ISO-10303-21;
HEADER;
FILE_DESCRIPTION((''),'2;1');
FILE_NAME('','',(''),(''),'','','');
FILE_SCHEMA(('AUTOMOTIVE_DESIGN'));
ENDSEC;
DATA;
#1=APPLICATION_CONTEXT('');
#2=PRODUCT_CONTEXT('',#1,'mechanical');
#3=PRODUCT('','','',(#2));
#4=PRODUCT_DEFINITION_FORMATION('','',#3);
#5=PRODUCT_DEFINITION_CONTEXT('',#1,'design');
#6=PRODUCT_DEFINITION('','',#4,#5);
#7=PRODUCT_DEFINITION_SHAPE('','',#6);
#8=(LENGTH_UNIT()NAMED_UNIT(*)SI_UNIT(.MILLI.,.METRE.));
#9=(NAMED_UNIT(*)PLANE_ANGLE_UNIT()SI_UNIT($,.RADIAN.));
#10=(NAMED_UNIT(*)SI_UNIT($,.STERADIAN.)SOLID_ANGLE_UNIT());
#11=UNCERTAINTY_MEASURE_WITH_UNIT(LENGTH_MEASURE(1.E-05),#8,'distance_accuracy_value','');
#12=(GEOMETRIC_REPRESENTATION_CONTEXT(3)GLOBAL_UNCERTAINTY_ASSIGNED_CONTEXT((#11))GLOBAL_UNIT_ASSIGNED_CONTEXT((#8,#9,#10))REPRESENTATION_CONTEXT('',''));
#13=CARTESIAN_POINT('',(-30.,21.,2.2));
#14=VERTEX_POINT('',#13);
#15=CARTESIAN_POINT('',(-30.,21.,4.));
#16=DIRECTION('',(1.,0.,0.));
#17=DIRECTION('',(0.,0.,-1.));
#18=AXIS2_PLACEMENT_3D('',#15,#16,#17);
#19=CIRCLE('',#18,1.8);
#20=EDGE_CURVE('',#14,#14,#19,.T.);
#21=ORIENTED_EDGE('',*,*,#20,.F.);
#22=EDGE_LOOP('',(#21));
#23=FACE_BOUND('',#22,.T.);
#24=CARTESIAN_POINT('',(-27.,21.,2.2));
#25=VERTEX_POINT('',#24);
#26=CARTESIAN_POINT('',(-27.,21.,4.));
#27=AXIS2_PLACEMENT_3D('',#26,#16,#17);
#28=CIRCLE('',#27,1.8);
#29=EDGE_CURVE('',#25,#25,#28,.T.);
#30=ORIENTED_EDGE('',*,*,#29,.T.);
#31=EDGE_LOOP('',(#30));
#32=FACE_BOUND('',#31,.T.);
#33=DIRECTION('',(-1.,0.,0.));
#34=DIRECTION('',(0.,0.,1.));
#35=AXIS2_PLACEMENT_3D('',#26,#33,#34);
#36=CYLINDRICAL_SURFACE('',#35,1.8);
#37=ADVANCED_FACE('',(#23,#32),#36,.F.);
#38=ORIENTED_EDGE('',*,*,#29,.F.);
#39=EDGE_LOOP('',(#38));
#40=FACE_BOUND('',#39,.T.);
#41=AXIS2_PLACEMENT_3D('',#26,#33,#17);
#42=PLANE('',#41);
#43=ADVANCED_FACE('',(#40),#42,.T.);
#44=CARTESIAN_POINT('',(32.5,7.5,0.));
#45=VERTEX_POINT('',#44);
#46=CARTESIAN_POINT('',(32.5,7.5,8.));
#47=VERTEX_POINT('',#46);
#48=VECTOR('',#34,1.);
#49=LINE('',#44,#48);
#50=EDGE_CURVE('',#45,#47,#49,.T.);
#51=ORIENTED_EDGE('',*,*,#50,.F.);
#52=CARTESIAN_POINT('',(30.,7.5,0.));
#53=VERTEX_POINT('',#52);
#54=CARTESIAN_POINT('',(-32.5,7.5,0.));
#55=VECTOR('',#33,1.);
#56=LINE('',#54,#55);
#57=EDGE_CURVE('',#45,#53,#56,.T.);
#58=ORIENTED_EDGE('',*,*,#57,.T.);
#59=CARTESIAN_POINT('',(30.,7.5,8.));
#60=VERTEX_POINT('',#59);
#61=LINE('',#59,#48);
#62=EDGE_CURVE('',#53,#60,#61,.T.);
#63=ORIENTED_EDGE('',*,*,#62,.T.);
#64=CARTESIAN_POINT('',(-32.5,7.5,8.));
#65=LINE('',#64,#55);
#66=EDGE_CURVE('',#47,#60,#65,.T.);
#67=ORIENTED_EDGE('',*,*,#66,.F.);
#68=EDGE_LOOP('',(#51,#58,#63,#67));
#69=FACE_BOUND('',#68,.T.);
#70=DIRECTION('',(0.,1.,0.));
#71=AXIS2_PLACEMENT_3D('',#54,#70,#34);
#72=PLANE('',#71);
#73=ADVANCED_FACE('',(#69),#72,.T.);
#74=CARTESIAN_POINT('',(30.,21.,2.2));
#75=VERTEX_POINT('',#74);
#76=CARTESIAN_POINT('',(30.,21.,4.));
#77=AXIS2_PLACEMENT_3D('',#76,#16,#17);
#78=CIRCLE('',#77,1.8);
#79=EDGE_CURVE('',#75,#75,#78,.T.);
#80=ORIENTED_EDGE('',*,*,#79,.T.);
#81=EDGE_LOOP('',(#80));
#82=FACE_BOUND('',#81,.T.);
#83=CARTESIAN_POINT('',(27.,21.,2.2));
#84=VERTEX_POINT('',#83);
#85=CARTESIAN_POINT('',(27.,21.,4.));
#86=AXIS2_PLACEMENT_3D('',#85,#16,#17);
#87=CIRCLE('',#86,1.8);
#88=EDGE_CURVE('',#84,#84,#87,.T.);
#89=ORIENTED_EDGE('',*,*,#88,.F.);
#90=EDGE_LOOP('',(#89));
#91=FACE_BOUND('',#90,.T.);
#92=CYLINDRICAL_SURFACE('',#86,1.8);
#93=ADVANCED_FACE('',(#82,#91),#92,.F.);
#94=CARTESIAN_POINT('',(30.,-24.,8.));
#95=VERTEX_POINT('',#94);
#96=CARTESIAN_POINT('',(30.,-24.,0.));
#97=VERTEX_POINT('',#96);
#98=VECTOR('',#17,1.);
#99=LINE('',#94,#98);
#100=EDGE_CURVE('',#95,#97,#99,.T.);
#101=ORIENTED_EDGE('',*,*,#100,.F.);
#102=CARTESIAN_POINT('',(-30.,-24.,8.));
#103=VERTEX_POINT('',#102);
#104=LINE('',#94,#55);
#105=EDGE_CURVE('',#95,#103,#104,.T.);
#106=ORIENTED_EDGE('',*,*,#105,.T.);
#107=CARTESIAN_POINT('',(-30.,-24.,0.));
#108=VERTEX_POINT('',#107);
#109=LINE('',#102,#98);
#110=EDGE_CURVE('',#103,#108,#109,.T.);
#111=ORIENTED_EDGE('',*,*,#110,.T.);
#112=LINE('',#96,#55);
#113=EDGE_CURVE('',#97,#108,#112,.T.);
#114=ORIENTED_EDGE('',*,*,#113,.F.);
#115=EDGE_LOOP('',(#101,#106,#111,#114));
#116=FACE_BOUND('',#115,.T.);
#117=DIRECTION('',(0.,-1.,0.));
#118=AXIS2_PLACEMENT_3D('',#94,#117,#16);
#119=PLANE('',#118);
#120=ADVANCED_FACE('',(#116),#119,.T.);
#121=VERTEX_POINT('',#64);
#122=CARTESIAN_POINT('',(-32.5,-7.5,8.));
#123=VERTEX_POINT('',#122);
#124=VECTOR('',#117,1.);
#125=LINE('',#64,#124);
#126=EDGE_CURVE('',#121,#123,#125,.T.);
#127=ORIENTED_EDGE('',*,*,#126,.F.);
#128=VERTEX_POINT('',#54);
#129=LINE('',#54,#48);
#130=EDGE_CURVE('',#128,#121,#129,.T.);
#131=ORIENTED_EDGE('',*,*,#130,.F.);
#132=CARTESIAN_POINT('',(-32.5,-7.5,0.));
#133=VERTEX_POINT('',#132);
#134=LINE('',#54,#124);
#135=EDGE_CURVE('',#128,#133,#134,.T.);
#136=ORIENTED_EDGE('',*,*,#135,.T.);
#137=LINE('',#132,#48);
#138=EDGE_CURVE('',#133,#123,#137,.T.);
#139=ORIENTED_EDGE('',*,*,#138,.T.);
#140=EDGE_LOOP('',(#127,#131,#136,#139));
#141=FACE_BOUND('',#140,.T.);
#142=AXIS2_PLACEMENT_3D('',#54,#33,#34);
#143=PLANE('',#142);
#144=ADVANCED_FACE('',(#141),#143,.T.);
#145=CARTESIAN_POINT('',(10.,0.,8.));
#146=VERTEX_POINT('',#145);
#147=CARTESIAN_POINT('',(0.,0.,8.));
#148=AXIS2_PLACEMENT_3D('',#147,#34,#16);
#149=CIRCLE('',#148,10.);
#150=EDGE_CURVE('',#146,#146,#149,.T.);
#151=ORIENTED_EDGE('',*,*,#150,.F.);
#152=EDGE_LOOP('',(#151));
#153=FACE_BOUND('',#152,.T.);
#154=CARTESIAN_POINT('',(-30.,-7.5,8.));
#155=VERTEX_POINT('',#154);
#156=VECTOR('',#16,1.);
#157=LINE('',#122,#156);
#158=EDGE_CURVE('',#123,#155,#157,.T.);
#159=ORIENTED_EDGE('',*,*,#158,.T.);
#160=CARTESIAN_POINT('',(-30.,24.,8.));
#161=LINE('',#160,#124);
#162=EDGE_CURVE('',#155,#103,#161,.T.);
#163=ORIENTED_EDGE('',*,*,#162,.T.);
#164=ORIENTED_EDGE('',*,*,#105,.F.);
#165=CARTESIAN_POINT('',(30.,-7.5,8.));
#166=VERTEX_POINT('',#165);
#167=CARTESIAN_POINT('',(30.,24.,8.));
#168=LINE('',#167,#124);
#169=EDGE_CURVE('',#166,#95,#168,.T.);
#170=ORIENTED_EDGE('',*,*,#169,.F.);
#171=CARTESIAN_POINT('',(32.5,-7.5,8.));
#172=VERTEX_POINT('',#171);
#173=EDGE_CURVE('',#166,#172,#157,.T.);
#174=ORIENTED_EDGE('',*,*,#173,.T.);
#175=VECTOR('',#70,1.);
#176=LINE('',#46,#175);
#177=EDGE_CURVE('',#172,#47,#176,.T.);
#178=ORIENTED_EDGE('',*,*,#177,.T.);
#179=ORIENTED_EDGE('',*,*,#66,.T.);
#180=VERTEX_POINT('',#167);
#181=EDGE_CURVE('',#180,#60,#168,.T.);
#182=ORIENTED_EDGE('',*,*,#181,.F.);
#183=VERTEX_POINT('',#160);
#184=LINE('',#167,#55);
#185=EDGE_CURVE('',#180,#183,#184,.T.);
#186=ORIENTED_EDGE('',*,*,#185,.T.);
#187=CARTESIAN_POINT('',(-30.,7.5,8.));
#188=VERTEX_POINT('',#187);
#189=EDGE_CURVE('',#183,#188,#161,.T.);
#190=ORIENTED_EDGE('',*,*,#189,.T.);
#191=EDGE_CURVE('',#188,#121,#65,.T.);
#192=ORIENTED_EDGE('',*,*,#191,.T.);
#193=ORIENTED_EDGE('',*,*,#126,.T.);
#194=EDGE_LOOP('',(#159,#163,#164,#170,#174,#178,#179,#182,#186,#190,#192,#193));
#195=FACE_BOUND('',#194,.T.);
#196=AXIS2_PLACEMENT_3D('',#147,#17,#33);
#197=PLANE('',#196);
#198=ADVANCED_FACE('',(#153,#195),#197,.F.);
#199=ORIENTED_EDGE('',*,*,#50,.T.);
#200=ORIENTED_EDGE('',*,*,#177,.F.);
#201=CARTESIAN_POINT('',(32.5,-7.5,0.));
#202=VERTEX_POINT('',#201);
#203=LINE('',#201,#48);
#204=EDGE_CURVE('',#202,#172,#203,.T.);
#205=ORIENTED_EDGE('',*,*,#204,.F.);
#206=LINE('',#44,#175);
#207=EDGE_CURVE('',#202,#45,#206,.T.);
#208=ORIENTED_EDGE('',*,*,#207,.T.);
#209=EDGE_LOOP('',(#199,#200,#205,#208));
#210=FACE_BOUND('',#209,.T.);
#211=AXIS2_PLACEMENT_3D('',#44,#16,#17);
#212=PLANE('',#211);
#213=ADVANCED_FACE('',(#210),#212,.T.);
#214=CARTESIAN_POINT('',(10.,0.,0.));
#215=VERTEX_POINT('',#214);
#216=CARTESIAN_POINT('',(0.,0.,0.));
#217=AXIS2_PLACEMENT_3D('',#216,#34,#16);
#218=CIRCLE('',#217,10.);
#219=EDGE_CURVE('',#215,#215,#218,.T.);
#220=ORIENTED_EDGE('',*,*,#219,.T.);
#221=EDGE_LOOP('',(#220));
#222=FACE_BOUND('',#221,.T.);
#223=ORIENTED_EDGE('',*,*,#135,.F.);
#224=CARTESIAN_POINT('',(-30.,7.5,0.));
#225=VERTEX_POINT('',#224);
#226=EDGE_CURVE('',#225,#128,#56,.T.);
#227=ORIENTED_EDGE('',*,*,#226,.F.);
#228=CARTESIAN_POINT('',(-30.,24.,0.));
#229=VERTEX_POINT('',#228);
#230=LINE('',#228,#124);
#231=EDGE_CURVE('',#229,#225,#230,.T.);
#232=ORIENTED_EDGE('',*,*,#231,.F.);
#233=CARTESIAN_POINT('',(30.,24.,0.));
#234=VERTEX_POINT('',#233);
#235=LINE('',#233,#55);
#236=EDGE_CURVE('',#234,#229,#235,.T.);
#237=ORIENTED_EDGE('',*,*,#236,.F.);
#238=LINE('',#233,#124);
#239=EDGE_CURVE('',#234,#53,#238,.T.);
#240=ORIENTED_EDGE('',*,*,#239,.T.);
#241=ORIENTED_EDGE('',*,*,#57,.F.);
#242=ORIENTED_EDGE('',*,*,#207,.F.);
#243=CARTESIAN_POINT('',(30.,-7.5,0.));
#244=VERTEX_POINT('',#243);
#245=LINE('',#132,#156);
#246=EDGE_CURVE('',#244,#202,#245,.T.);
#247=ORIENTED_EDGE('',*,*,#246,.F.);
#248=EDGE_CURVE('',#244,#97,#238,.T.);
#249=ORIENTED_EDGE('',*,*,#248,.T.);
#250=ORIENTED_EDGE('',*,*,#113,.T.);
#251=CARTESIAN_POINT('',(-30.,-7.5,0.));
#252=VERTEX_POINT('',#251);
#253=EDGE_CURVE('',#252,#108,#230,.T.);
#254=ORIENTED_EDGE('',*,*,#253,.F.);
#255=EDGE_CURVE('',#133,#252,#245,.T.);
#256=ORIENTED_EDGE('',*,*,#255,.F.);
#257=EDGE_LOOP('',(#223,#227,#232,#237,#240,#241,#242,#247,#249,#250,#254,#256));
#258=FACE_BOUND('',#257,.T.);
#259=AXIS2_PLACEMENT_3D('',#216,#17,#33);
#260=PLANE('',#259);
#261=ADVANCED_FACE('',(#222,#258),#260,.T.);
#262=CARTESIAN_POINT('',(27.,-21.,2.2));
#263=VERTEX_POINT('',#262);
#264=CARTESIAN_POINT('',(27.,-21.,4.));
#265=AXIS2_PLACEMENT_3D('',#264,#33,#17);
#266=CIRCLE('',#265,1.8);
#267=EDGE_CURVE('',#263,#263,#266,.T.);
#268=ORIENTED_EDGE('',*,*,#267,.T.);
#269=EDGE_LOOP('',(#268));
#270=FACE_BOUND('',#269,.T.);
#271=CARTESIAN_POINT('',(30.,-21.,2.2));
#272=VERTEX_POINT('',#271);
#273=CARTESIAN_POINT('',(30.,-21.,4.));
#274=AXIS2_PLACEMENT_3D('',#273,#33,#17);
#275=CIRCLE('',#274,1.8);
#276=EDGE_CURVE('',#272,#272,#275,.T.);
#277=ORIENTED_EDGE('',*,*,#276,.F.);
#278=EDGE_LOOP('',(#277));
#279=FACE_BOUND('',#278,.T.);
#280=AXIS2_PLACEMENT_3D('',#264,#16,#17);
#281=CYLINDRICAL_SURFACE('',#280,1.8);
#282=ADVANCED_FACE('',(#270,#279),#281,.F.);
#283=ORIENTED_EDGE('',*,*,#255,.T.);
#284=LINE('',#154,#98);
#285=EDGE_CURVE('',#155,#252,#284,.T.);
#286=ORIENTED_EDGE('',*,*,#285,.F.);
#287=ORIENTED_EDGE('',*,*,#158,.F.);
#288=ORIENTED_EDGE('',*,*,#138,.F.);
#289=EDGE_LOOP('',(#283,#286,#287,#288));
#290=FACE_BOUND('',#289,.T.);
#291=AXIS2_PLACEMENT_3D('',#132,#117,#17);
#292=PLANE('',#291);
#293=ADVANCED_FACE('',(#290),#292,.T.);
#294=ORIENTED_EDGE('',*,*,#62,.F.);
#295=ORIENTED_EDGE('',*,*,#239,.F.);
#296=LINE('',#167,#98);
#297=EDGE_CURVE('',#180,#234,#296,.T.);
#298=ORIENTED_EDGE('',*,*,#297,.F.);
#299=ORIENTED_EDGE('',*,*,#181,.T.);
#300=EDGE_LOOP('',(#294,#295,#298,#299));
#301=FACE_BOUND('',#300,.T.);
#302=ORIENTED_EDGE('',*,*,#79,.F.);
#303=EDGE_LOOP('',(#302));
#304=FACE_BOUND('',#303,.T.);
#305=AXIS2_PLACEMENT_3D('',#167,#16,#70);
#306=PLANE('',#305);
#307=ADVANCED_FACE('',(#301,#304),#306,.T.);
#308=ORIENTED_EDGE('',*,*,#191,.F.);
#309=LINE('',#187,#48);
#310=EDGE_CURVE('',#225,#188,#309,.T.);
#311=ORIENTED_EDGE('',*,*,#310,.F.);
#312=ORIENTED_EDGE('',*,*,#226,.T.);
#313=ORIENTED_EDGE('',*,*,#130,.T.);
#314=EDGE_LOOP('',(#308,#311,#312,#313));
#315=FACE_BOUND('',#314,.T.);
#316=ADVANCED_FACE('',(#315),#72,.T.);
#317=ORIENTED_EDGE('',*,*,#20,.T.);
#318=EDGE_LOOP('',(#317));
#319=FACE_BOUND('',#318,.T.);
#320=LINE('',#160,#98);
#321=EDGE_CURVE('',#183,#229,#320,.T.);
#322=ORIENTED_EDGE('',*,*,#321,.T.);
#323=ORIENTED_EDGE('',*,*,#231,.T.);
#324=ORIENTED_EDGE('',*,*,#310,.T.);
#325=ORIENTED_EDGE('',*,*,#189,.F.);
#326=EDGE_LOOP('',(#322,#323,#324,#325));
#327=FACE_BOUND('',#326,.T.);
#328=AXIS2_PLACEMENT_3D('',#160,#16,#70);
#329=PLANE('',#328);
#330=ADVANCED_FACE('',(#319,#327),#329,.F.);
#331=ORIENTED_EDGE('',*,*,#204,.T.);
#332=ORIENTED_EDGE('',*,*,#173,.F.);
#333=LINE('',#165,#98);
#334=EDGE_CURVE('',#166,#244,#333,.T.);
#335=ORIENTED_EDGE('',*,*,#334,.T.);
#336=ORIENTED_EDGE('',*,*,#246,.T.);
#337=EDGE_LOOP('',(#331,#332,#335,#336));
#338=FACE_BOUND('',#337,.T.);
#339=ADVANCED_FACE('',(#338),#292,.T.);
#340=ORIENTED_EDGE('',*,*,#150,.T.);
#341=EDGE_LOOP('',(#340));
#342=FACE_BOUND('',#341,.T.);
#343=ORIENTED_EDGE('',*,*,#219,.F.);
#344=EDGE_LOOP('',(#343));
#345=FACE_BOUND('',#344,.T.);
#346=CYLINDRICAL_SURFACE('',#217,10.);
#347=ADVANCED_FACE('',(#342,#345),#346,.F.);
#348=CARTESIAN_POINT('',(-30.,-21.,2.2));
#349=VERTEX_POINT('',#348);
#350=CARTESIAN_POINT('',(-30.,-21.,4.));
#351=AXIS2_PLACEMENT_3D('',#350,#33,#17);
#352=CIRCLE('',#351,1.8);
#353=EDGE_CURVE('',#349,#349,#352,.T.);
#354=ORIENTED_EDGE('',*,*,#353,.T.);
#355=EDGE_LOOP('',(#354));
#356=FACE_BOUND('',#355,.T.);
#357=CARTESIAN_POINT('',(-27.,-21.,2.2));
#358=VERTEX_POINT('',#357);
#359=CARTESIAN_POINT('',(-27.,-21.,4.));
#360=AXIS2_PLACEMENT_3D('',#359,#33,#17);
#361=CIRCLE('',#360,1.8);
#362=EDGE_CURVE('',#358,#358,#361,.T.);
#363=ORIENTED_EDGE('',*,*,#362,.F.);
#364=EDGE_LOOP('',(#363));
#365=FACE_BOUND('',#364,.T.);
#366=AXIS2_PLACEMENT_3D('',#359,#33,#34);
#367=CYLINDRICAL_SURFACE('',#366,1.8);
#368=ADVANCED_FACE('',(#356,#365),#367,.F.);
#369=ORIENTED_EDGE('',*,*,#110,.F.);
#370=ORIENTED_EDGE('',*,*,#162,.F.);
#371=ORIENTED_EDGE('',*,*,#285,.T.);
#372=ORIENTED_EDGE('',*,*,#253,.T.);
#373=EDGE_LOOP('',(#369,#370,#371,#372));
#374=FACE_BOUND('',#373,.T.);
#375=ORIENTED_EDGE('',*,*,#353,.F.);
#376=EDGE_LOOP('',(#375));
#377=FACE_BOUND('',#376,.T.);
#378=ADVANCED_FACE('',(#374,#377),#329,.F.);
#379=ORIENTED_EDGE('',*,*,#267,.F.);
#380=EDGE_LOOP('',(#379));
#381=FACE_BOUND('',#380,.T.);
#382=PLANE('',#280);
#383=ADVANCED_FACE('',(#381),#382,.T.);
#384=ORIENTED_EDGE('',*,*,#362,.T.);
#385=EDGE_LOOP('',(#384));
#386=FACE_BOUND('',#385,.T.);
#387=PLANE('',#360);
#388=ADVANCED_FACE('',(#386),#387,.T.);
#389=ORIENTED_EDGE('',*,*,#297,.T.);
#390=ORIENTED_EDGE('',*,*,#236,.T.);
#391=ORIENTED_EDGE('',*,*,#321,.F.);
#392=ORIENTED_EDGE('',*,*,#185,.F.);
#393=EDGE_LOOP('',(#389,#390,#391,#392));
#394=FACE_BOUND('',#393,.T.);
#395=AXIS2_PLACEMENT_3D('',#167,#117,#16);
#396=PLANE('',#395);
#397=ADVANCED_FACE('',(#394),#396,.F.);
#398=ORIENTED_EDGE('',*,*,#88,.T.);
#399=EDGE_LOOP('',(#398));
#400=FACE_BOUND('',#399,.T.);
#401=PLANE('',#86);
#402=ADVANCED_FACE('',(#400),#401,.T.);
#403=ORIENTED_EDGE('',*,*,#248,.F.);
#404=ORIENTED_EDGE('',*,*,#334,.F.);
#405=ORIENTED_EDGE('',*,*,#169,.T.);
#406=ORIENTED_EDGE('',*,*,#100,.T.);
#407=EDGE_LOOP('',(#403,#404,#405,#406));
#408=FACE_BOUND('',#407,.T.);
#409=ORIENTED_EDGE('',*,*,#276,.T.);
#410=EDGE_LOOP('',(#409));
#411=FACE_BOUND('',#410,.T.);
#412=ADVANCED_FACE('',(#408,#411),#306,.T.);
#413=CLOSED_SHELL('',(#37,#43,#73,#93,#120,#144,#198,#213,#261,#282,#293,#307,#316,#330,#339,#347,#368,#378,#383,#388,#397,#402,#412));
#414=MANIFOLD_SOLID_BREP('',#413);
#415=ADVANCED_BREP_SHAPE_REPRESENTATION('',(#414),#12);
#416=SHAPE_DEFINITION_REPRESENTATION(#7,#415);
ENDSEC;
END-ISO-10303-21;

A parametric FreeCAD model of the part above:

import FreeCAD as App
import Part
import Sketcher

V = App.Vector

doc = App.newDocument("Part")
body = doc.addObject("PartDesign::Body", "Body")

sketch1 = doc.addObject("Sketcher::SketchObject", "Sketch")
body.addObject(sketch1)
sketch1.AttachmentSupport = (doc.XY_Plane, [""])
sketch1.MapMode = "FlatFace"
sketch1.addGeometry(Part.LineSegment(V(-30, 24, 0), V(-30, -24, 0)), False)
sketch1.addGeometry(Part.LineSegment(V(-30, -24, 0), V(30, -24, 0)), False)
sketch1.addGeometry(Part.LineSegment(V(30, -24, 0), V(30, 24, 0)), False)
sketch1.addGeometry(Part.LineSegment(V(30, 24, 0), V(-30, 24, 0)), False)
sketch1.addConstraint(Sketcher.Constraint("Coincident", 0, 2, 1, 1))
sketch1.addConstraint(Sketcher.Constraint("Coincident", 1, 2, 2, 1))
sketch1.addConstraint(Sketcher.Constraint("Coincident", 2, 2, 3, 1))
sketch1.addConstraint(Sketcher.Constraint("Coincident", 3, 2, 0, 1))
sketch1.addConstraint(Sketcher.Constraint("Vertical", 0))
sketch1.addConstraint(Sketcher.Constraint("Horizontal", 1))
sketch1.addConstraint(Sketcher.Constraint("Vertical", 2))
sketch1.addConstraint(Sketcher.Constraint("Horizontal", 3))
sketch1.addConstraint(Sketcher.Constraint("Symmetric", 0, 2, 2, 2, -1, 1))
sketch1.addConstraint(Sketcher.Constraint("DistanceX", 1, 1, 1, 2, 60.0))
sketch1.addConstraint(Sketcher.Constraint("DistanceY", 0, 2, 0, 1, 48.0))
pad1 = doc.addObject("PartDesign::Pad", "Pad")
body.addObject(pad1)
pad1.Profile = sketch1
pad1.Length = 8

sketch2 = doc.addObject("Sketcher::SketchObject", "Sketch001")
body.addObject(sketch2)
sketch2.AttachmentSupport = (doc.XY_Plane, [""])
sketch2.MapMode = "FlatFace"
sketch2.AttachmentOffset = App.Placement(V(0, 0, 8), App.Rotation())
sketch2.addGeometry(Part.LineSegment(V(-32, 8, 0), V(-32, -8, 0)), False)
sketch2.addGeometry(Part.LineSegment(V(-32, -8, 0), V(32, -8, 0)), False)
sketch2.addGeometry(Part.LineSegment(V(32, -8, 0), V(32, 8, 0)), False)
sketch2.addGeometry(Part.LineSegment(V(32, 8, 0), V(-32, 8, 0)), False)
sketch2.addConstraint(Sketcher.Constraint("Coincident", 0, 2, 1, 1))
sketch2.addConstraint(Sketcher.Constraint("Coincident", 1, 2, 2, 1))
sketch2.addConstraint(Sketcher.Constraint("Coincident", 2, 2, 3, 1))
sketch2.addConstraint(Sketcher.Constraint("Coincident", 3, 2, 0, 1))
sketch2.addConstraint(Sketcher.Constraint("Vertical", 0))
sketch2.addConstraint(Sketcher.Constraint("Horizontal", 1))
sketch2.addConstraint(Sketcher.Constraint("Vertical", 2))
sketch2.addConstraint(Sketcher.Constraint("Horizontal", 3))
sketch2.addConstraint(Sketcher.Constraint("Symmetric", 0, 2, 2, 2, -1, 1))
sketch2.addConstraint(Sketcher.Constraint("DistanceX", 1, 1, 1, 2, 65.0))
sketch2.addConstraint(Sketcher.Constraint("DistanceY", 0, 2, 0, 1, 15.0))
pad2 = doc.addObject("PartDesign::Pad", "Pad001")
body.addObject(pad2)
pad2.Profile = sketch2
pad2.Length = 8
pad2.Reversed = True

sketch3 = doc.addObject("Sketcher::SketchObject", "Sketch002")
body.addObject(sketch3)
sketch3.AttachmentSupport = (doc.YZ_Plane, [""])
sketch3.MapMode = "FlatFace"
sketch3.AttachmentOffset = App.Placement(V(0, 0, 30), App.Rotation())
sketch3.addGeometry(Part.Circle(V(21, 4, 0), V(0, 0, 1), 1.8), False)
sketch3.addConstraint(Sketcher.Constraint("Diameter", 0, 3.6))
sketch3.addConstraint(Sketcher.Constraint("DistanceX", -1, 1, 0, 3, 21.0))
sketch3.addConstraint(Sketcher.Constraint("DistanceY", -1, 1, 0, 3, 4.0))
pocket1 = doc.addObject("PartDesign::Pocket", "Pocket")
body.addObject(pocket1)
pocket1.Profile = sketch3
pocket1.Length = 3
doc.recompute()

mirrored = doc.addObject("PartDesign::Mirrored", "Mirrored")
body.addObject(mirrored)
mirrored.Originals = [pocket1]
mirrored.MirrorPlane = (doc.XZ_Plane, [""])
body.Tip = mirrored
doc.recompute()

mirrored2 = doc.addObject("PartDesign::Mirrored", "Mirrored001")
body.addObject(mirrored2)
mirrored2.Originals = [pocket1]
mirrored2.MirrorPlane = (doc.YZ_Plane, [""])
body.Tip = mirrored2

sketch4 = doc.addObject("Sketcher::SketchObject", "Sketch003")
body.addObject(sketch4)
sketch4.AttachmentSupport = (doc.YZ_Plane, [""])
sketch4.MapMode = "FlatFace"
sketch4.AttachmentOffset = App.Placement(V(0, 0, -30), App.Rotation())
sketch4.addGeometry(Part.Circle(V(-21, 4, 0), V(0, 0, 1), 1.8), False)
sketch4.addConstraint(Sketcher.Constraint("Diameter", 0, 3.6))
sketch4.addConstraint(Sketcher.Constraint("DistanceX", 0, 3, -1, 1, 21.0))
sketch4.addConstraint(Sketcher.Constraint("DistanceY", -1, 1, 0, 3, 4.0))
pocket2 = doc.addObject("PartDesign::Pocket", "Pocket001")
body.addObject(pocket2)
pocket2.Profile = sketch4
pocket2.Length = 3
pocket2.Reversed = True

sketch5 = doc.addObject("Sketcher::SketchObject", "Sketch004")
body.addObject(sketch5)
sketch5.AttachmentSupport = (doc.XY_Plane, [""])
sketch5.MapMode = "FlatFace"
sketch5.AttachmentOffset = App.Placement(V(0, 0, 8), App.Rotation())
sketch5.addGeometry(Part.Circle(V(0, 0, 0), V(0, 0, 1), 10), False)
sketch5.addConstraint(Sketcher.Constraint("Coincident", 0, 3, -1, 1))
sketch5.addConstraint(Sketcher.Constraint("Diameter", 0, 20.0))
pocket3 = doc.addObject("PartDesign::Pocket", "Pocket002")
body.addObject(pocket3)
pocket3.Profile = sketch5
pocket3.Length = 8

doc.recompute()
